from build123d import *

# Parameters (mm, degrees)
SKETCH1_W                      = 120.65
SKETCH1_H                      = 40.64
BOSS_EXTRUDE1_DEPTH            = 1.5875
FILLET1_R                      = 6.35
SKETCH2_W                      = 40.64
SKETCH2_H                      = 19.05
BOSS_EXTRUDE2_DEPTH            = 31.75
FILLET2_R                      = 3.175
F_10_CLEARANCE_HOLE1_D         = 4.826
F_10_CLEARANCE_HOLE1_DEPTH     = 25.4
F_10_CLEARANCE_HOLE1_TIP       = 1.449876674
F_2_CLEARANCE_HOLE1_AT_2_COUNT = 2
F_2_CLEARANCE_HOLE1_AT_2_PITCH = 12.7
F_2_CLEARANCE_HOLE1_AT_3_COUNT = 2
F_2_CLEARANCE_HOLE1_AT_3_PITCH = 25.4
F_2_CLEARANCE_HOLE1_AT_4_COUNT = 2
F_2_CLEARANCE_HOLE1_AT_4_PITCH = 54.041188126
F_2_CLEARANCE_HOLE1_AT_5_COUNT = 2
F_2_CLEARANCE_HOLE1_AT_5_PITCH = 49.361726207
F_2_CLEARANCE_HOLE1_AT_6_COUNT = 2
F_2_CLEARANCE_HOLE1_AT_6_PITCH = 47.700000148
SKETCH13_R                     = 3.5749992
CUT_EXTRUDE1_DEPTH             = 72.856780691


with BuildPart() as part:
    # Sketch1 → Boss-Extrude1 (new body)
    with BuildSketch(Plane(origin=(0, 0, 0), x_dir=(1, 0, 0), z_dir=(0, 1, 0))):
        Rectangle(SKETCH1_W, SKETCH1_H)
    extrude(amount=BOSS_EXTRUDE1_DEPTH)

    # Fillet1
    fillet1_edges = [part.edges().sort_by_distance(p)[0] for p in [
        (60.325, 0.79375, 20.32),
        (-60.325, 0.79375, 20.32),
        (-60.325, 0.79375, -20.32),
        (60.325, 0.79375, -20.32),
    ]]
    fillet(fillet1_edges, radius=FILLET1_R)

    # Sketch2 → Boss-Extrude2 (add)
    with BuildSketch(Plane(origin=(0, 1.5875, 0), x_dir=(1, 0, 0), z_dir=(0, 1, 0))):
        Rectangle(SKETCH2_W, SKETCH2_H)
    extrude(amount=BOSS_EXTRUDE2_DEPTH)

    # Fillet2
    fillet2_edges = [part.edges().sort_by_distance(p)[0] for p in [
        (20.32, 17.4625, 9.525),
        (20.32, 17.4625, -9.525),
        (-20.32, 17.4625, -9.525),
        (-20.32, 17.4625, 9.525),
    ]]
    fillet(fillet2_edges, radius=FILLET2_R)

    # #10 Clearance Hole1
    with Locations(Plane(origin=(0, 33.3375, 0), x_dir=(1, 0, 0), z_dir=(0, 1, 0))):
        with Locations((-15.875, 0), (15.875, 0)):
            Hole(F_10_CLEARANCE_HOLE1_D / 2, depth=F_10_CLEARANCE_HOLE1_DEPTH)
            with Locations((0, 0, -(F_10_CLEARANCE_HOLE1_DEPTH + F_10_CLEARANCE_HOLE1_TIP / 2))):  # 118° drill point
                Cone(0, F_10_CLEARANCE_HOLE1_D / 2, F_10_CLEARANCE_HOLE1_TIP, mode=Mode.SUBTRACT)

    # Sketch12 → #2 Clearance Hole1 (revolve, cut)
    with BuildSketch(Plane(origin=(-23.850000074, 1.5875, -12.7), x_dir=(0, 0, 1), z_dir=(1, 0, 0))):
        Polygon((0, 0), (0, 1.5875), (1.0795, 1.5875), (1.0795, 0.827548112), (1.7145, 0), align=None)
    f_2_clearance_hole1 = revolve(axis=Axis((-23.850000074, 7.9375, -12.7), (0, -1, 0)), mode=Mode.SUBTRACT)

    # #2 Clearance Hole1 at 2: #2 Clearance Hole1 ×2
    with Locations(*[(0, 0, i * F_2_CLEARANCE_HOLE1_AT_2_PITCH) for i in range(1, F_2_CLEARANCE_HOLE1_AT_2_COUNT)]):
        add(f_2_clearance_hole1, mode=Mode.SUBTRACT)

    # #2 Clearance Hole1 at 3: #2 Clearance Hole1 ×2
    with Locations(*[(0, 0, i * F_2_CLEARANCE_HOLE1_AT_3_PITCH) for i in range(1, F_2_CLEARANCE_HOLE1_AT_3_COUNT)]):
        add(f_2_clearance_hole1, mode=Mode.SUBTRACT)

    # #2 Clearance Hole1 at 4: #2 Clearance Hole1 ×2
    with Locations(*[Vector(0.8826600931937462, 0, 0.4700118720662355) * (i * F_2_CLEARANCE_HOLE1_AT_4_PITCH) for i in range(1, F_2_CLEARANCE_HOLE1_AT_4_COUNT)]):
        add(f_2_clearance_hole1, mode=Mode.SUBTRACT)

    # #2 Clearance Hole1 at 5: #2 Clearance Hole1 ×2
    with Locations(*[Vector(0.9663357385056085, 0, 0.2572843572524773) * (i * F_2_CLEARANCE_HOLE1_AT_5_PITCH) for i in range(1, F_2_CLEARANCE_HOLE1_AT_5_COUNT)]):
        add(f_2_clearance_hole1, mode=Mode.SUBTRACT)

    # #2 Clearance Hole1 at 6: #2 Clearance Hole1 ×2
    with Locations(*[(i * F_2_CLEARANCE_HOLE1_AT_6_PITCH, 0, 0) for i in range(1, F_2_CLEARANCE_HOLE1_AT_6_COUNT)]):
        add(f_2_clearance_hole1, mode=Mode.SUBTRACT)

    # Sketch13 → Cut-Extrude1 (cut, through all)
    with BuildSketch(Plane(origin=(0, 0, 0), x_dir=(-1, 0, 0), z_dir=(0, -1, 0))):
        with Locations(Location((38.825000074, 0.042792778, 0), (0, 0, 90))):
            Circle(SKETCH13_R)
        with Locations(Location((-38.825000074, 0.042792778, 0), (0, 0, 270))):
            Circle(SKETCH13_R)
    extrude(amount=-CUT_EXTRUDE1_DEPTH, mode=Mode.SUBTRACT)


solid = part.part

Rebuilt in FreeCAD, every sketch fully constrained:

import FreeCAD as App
import Part
import Sketcher
Q = App.Units.Quantity


def edges_at(feature, points):
    """Names of the edges that pass closest to the given points."""
    edges = feature.Shape.Edges
    near = lambda p: min(range(len(edges)), key=lambda i: edges[i].distToShape(Part.Vertex(*p))[0])
    return sorted({f"Edge{near(p) + 1}" for p in points})


def add_polygon(sketch, points):
    """Adds a closed chain of lines whose ends are joined by coincident constraints."""
    first, n = sketch.GeometryCount, len(points)
    for a, b in zip(points, points[1:] + points[:1]):
        sketch.addGeometry(Part.LineSegment(App.Vector(*a, 0), App.Vector(*b, 0)), False)
    for i in range(n):
        sketch.addConstraint(Sketcher.Constraint("Coincident", first + i, 2, first + (i + 1) % n, 1))

doc = App.newDocument("Part")
body = doc.addObject("PartDesign::Body", "Body")

sketch1 = body.newObject("Sketcher::SketchObject", "Sketch")
sketch1.AttachmentSupport = (doc.getObject("XZ_Plane"), [""])
sketch1.MapMode = "FlatFace"
add_polygon(sketch1, [(-60, -20), (-60, 20), (60, 20), (60, -20)])
sketch1.addConstraint(Sketcher.Constraint("Vertical", 0))
sketch1.addConstraint(Sketcher.Constraint("Horizontal", 1))
sketch1.addConstraint(Sketcher.Constraint("Vertical", 2))
sketch1.addConstraint(Sketcher.Constraint("Horizontal", 3))
sketch1.addConstraint(Sketcher.Constraint("Symmetric", 0, 2, 2, 2, -1, 1))
sketch1.addConstraint(Sketcher.Constraint("DistanceY", 0, 1, 0, 2, Q("1.6 in")))
sketch1.addConstraint(Sketcher.Constraint("DistanceX", 1, 1, 1, 2, Q("4.75 in")))
pad1 = body.newObject("PartDesign::Pad", "Pad")
pad1.Profile = sketch1
pad1.Length = Q("0.0625 in")
pad1.Reversed = True
doc.recompute()

fillet = body.newObject("PartDesign::Fillet", "Fillet")
fillet.Base = (pad1, edges_at(pad1, [
    (60.325, 0.794, 20.32),
    (-60.325, 0.794, 20.32),
    (-60.325, 0.794, -20.32),
    (60.325, 0.794, -20.32),
]))
fillet.Radius = Q("0.25 in")

sketch2 = body.newObject("Sketcher::SketchObject", "Sketch001")
sketch2.AttachmentSupport = (doc.getObject("XZ_Plane"), [""])
sketch2.MapMode = "FlatFace"
sketch2.AttachmentOffset = App.Placement(App.Vector(0, 0, -0.0625 * 25.4), App.Rotation())
add_polygon(sketch2, [(-20, -10), (-20, 10), (20, 10), (20, -10)])
sketch2.addConstraint(Sketcher.Constraint("Vertical", 0))
sketch2.addConstraint(Sketcher.Constraint("Horizontal", 1))
sketch2.addConstraint(Sketcher.Constraint("Vertical", 2))
sketch2.addConstraint(Sketcher.Constraint("Horizontal", 3))
sketch2.addConstraint(Sketcher.Constraint("Symmetric", 0, 2, 2, 2, -1, 1))
sketch2.addConstraint(Sketcher.Constraint("DistanceX", 1, 1, 1, 2, Q("1.6 in")))
sketch2.addConstraint(Sketcher.Constraint("DistanceY", 0, 1, 0, 2, Q("0.75 in")))
pad2 = body.newObject("PartDesign::Pad", "Pad001")
pad2.Profile = sketch2
pad2.Length = Q("1.25 in")
pad2.Reversed = True
doc.recompute()

fillet2 = body.newObject("PartDesign::Fillet", "Fillet001")
fillet2.Base = (pad2, edges_at(pad2, [
    (20.32, 17.462, 9.525),
    (20.32, 17.462, -9.525),
    (-20.32, 17.462, -9.525),
    (-20.32, 17.462, 9.525),
]))
fillet2.Radius = Q("0.125 in")

sketch3 = body.newObject("Sketcher::SketchObject", "Sketch002")
sketch3.AttachmentSupport = (doc.getObject("XZ_Plane"), [""])
sketch3.MapMode = "FlatFace"
sketch3.AttachmentOffset = App.Placement(App.Vector(0, 0, -1.3125 * 25.4), App.Rotation())
sketch3.addGeometry(Part.Circle(App.Vector(-15.9, 0, 0), App.Vector(0, 0, 1), 2.4), False)
sketch3.addGeometry(Part.Circle(App.Vector(15.9, 0, 0), App.Vector(0, 0, 1), 2.4), False)
sketch3.addConstraint(Sketcher.Constraint("Equal", 0, 1))
sketch3.addConstraint(Sketcher.Constraint("Symmetric", 0, 3, 1, 3, -1, 1))
sketch3.addConstraint(Sketcher.Constraint("PointOnObject", 0, 3, -1))
sketch3.addConstraint(Sketcher.Constraint("Diameter", 0, Q("0.19 in")))
sketch3.addConstraint(Sketcher.Constraint("DistanceX", 0, 3, 1, 3, Q("1.25 in")))
doc.recompute()
hole = body.newObject("PartDesign::Hole", "Hole")
hole.Profile = sketch3
hole.ThreadType = "None"
hole.Diameter = Q("0.19 in")
hole.DepthType = "Dimension"
hole.Depth = Q("1 in")
hole.DrillPoint = "Angled"
hole.DrillPointAngle = 118
hole.Reversed = True

sketch4 = body.newObject("Sketcher::SketchObject", "Sketch003")
sketch4.AttachmentSupport = (doc.getObject("YZ_Plane"), [""])
sketch4.MapMode = "FlatFace"
sketch4.AttachmentOffset = App.Placement(App.Vector(0, 0, -23.85), App.Rotation())
add_polygon(sketch4, [(0, -12.7), (1.6, -12.7), (1.6, -11), (0.8, -11.6), (0, -11.6)])
sketch4.addGeometry(Part.LineSegment(App.Vector(1.6, -12.7, 0), App.Vector(0, -12.7, 0)), True)
sketch4.addConstraint(Sketcher.Constraint("Horizontal", 0))
sketch4.addConstraint(Sketcher.Constraint("Vertical", 1))
sketch4.addConstraint(Sketcher.Constraint("Horizontal", 3))
sketch4.addConstraint(Sketcher.Constraint("Vertical", 4))
sketch4.addConstraint(Sketcher.Constraint("Horizontal", 5))
sketch4.addConstraint(Sketcher.Constraint("Coincident", 5, 1, 0, 2))
sketch4.addConstraint(Sketcher.Constraint("PointOnObject", 3, 2, -2))
sketch4.addConstraint(Sketcher.Constraint("PointOnObject", 5, 2, -2))
sketch4.addConstraint(Sketcher.Constraint("DistanceY", 0, 2, -1, 1, Q("0.5 in")))
sketch4.addConstraint(Sketcher.Constraint("Angle", 2, Q("-142.5 deg")))
sketch4.addConstraint(Sketcher.Constraint("DistanceX", 0, 1, 0, 2, Q("0.0625 in")))
sketch4.addConstraint(Sketcher.Constraint("DistanceY", 1, 1, 1, 2, Q("0.0675 in")))
sketch4.addConstraint(Sketcher.Constraint("DistanceY", 4, 2, 4, 1, Q("0.0425 in")))
groove = body.newObject("PartDesign::Groove", "Groove")
groove.Profile = sketch4
groove.ReferenceAxis = (sketch4, ["Axis0"])
groove.Angle = 360
doc.recompute()

linearpattern = body.newObject("PartDesign::LinearPattern", "LinearPattern")
linearpattern.Originals = [groove]
linearpattern.Direction = (doc.getObject("Z_Axis"), [""])
linearpattern.Mode = "offset"
linearpattern.Offset = Q("0.5 in")
linearpattern.Occurrences = 2
body.Tip = linearpattern
doc.recompute()

linearpattern2 = body.newObject("PartDesign::LinearPattern", "LinearPattern001")
linearpattern2.Originals = [groove]
linearpattern2.Direction = (doc.getObject("Z_Axis"), [""])
linearpattern2.Mode = "offset"
linearpattern2.Offset = Q("1 in")
linearpattern2.Occurrences = 2
body.Tip = linearpattern2
doc.recompute()

datumline = body.newObject("PartDesign::Line", "DatumLine")
datumline.Placement = App.Placement(App.Vector(0, 0, 0), App.Rotation(App.Vector(0, 0, 1), App.Vector(0.882660093, 0, 0.470011872)))
linearpattern3 = body.newObject("PartDesign::LinearPattern", "LinearPattern002")
linearpattern3.Originals = [groove]
linearpattern3.Direction = (datumline, [""])
linearpattern3.Mode = "offset"
linearpattern3.Offset = 54.041188
linearpattern3.Occurrences = 2
body.Tip = linearpattern3
doc.recompute()

datumline2 = body.newObject("PartDesign::Line", "DatumLine001")
datumline2.Placement = App.Placement(App.Vector(0, 0, 0), App.Rotation(App.Vector(0, 0, 1), App.Vector(0.966335739, 0, 0.257284357)))
linearpattern4 = body.newObject("PartDesign::LinearPattern", "LinearPattern003")
linearpattern4.Originals = [groove]
linearpattern4.Direction = (datumline2, [""])
linearpattern4.Mode = "offset"
linearpattern4.Offset = 49.361726
linearpattern4.Occurrences = 2
body.Tip = linearpattern4
doc.recompute()

linearpattern5 = body.newObject("PartDesign::LinearPattern", "LinearPattern004")
linearpattern5.Originals = [groove]
linearpattern5.Direction = (doc.getObject("X_Axis"), [""])
linearpattern5.Mode = "offset"
linearpattern5.Offset = 47.7
linearpattern5.Occurrences = 2
body.Tip = linearpattern5

sketch5 = body.newObject("Sketcher::SketchObject", "Sketch004")
sketch5.AttachmentSupport = (doc.getObject("XZ_Plane"), [""])
sketch5.MapMode = "FlatFace"
sketch5.addGeometry(Part.Circle(App.Vector(-38.8, 0, 0), App.Vector(0, 0, 1), 3.6), False)
sketch5.addGeometry(Part.Circle(App.Vector(38.8, 0, 0), App.Vector(0, 0, 1), 3.6), False)
sketch5.addConstraint(Sketcher.Constraint("Equal", 0, 1))
sketch5.addConstraint(Sketcher.Constraint("Symmetric", 0, 3, 1, 3, -2))
sketch5.addConstraint(Sketcher.Constraint("Diameter", 0, 7.149998))
sketch5.addConstraint(Sketcher.Constraint("DistanceX", 0, 3, -1, 1, 38.825))
sketch5.addConstraint(Sketcher.Constraint("DistanceY", 0, 3, -1, 1, 0.042793))
pocket1 = body.newObject("PartDesign::Pocket", "Pocket")
pocket1.Profile = sketch5
pocket1.Type = "ThroughAll"

doc.recompute()
